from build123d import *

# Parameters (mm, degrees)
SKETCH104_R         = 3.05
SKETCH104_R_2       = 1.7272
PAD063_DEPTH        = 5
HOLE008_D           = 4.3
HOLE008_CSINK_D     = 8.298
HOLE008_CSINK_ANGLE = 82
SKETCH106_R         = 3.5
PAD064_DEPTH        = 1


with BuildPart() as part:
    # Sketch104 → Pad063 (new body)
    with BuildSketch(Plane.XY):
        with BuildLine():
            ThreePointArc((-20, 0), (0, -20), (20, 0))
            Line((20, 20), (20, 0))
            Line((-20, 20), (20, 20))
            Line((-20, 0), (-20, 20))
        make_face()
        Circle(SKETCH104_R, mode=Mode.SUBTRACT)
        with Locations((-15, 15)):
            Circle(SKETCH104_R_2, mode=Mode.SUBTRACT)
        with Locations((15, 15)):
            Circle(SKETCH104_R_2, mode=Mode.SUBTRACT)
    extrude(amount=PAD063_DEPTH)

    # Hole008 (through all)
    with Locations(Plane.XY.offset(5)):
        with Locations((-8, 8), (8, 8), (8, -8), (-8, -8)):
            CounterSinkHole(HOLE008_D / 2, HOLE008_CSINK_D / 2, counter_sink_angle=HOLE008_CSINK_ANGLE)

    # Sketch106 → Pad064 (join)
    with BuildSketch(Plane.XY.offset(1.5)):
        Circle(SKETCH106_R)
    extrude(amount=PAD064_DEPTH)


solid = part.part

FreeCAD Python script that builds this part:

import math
import FreeCAD as App
import Part
import Sketcher
from FreeCAD import Vector
Q = App.Units.Quantity

doc = App.newDocument("Part")
body = doc.addObject("PartDesign::Body", "Body")

sketch1 = body.newObject("Sketcher::SketchObject", "Sketch")
sketch1.AttachmentSupport = (doc.getObject("XY_Plane"), [""])
sketch1.MapMode = "FlatFace"
sketch1.addGeometry(Part.ArcOfCircle(Part.Circle(Vector(0, 0, 0), Vector(0, 0, 1), 20), math.radians(180), math.radians(360)), False)
sketch1.addGeometry(Part.LineSegment(Vector(20, 0, 0), Vector(20, 20, 0)), False)
sketch1.addGeometry(Part.LineSegment(Vector(20, 20, 0), Vector(-20, 20, 0)), False)
sketch1.addGeometry(Part.LineSegment(Vector(-20, 20, 0), Vector(-20, 0, 0)), False)
sketch1.addGeometry(Part.Circle(Vector(0, 0, 0), Vector(0, 0, 1), 3), False)
sketch1.addGeometry(Part.Circle(Vector(-15, 15, 0), Vector(0, 0, 1), 1.7), False)
sketch1.addGeometry(Part.Circle(Vector(15, 15, 0), Vector(0, 0, 1), 1.7), False)
sketch1.addConstraint(Sketcher.Constraint("Tangent", 0, 2, 1, 1))
sketch1.addConstraint(Sketcher.Constraint("Coincident", 1, 2, 2, 1))
sketch1.addConstraint(Sketcher.Constraint("Coincident", 2, 2, 3, 1))
sketch1.addConstraint(Sketcher.Constraint("Tangent", 3, 2, 0, 1))
sketch1.addConstraint(Sketcher.Constraint("Vertical", 1))
sketch1.addConstraint(Sketcher.Constraint("Horizontal", 2))
sketch1.addConstraint(Sketcher.Constraint("Vertical", 3))
sketch1.addConstraint(Sketcher.Constraint("Coincident", 0, 3, -1, 1))
sketch1.addConstraint(Sketcher.Constraint("Coincident", 4, 3, -1, 1))
sketch1.addConstraint(Sketcher.Constraint("Equal", 5, 6))
sketch1.addConstraint(Sketcher.Constraint("Symmetric", 5, 3, 6, 3, -2))
sketch1.addConstraint(Sketcher.Constraint("Radius", 0, Q("20 mm")))
sketch1.addConstraint(Sketcher.Constraint("Diameter", 4, Q("6.1 mm")))
sketch1.addConstraint(Sketcher.Constraint("DistanceY", 1, 1, 1, 2, Q("20 mm")))
sketch1.addConstraint(Sketcher.Constraint("DistanceX", 5, 3, -1, 1, Q("15 mm")))
sketch1.addConstraint(Sketcher.Constraint("DistanceY", -1, 1, 5, 3, Q("15 mm")))
sketch1.addConstraint(Sketcher.Constraint("Diameter", 5, Q("3.4544 mm")))
pad1 = body.newObject("PartDesign::Pad", "Pad")
pad1.Profile = sketch1
pad1.Length = 5

sketch2 = body.newObject("Sketcher::SketchObject", "Sketch001")
sketch2.AttachmentSupport = (doc.getObject("XY_Plane"), [""])
sketch2.MapMode = "FlatFace"
sketch2.AttachmentOffset = App.Placement(Vector(0, 0, 5), App.Rotation())
sketch2.addGeometry(Part.Circle(Vector(-8, 8, 0), Vector(0, 0, 1), 2.1), False)
sketch2.addGeometry(Part.Circle(Vector(8, 8, 0), Vector(0, 0, 1), 2.1), False)
sketch2.addGeometry(Part.Circle(Vector(8, -8, 0), Vector(0, 0, 1), 2.1), False)
sketch2.addGeometry(Part.Circle(Vector(-8, -8, 0), Vector(0, 0, 1), 2.1), False)
sketch2.addConstraint(Sketcher.Constraint("Equal", 0, 1))
sketch2.addConstraint(Sketcher.Constraint("Equal", 1, 2))
sketch2.addConstraint(Sketcher.Constraint("Equal", 2, 3))
sketch2.addConstraint(Sketcher.Constraint("Symmetric", 0, 3, 2, 3, -1, 1))
sketch2.addConstraint(Sketcher.Constraint("Symmetric", 1, 3, 3, 3, -1, 1))
sketch2.addConstraint(Sketcher.Constraint("Symmetric", 0, 3, 1, 3, -2))
sketch2.addConstraint(Sketcher.Constraint("Diameter", 0, Q("4.3 mm")))
sketch2.addConstraint(Sketcher.Constraint("DistanceX", 0, 3, -1, 1, Q("8 mm")))
sketch2.addConstraint(Sketcher.Constraint("DistanceY", -1, 1, 0, 3, Q("8 mm")))
doc.recompute()
hole = body.newObject("PartDesign::Hole", "Hole")
hole.Profile = sketch2
hole.ThreadType = "None"
hole.Diameter = 4.3
hole.DepthType = "ThroughAll"
hole.HoleCutType = "Countersink"
hole.HoleCutDiameter = 8.298
hole.HoleCutCountersinkAngle = 82

sketch3 = body.newObject("Sketcher::SketchObject", "Sketch002")
sketch3.AttachmentSupport = (doc.getObject("XY_Plane"), [""])
sketch3.MapMode = "FlatFace"
sketch3.AttachmentOffset = App.Placement(Vector(0, 0, 1.5), App.Rotation())
sketch3.addGeometry(Part.Circle(Vector(0, 0, 0), Vector(0, 0, 1), 3.5), False)
sketch3.addConstraint(Sketcher.Constraint("Coincident", 0, 3, -1, 1))
sketch3.addConstraint(Sketcher.Constraint("Diameter", 0, Q("7 mm")))
pad2 = body.newObject("PartDesign::Pad", "Pad001")
pad2.Profile = sketch3
pad2.Length = 1

doc.recompute()
